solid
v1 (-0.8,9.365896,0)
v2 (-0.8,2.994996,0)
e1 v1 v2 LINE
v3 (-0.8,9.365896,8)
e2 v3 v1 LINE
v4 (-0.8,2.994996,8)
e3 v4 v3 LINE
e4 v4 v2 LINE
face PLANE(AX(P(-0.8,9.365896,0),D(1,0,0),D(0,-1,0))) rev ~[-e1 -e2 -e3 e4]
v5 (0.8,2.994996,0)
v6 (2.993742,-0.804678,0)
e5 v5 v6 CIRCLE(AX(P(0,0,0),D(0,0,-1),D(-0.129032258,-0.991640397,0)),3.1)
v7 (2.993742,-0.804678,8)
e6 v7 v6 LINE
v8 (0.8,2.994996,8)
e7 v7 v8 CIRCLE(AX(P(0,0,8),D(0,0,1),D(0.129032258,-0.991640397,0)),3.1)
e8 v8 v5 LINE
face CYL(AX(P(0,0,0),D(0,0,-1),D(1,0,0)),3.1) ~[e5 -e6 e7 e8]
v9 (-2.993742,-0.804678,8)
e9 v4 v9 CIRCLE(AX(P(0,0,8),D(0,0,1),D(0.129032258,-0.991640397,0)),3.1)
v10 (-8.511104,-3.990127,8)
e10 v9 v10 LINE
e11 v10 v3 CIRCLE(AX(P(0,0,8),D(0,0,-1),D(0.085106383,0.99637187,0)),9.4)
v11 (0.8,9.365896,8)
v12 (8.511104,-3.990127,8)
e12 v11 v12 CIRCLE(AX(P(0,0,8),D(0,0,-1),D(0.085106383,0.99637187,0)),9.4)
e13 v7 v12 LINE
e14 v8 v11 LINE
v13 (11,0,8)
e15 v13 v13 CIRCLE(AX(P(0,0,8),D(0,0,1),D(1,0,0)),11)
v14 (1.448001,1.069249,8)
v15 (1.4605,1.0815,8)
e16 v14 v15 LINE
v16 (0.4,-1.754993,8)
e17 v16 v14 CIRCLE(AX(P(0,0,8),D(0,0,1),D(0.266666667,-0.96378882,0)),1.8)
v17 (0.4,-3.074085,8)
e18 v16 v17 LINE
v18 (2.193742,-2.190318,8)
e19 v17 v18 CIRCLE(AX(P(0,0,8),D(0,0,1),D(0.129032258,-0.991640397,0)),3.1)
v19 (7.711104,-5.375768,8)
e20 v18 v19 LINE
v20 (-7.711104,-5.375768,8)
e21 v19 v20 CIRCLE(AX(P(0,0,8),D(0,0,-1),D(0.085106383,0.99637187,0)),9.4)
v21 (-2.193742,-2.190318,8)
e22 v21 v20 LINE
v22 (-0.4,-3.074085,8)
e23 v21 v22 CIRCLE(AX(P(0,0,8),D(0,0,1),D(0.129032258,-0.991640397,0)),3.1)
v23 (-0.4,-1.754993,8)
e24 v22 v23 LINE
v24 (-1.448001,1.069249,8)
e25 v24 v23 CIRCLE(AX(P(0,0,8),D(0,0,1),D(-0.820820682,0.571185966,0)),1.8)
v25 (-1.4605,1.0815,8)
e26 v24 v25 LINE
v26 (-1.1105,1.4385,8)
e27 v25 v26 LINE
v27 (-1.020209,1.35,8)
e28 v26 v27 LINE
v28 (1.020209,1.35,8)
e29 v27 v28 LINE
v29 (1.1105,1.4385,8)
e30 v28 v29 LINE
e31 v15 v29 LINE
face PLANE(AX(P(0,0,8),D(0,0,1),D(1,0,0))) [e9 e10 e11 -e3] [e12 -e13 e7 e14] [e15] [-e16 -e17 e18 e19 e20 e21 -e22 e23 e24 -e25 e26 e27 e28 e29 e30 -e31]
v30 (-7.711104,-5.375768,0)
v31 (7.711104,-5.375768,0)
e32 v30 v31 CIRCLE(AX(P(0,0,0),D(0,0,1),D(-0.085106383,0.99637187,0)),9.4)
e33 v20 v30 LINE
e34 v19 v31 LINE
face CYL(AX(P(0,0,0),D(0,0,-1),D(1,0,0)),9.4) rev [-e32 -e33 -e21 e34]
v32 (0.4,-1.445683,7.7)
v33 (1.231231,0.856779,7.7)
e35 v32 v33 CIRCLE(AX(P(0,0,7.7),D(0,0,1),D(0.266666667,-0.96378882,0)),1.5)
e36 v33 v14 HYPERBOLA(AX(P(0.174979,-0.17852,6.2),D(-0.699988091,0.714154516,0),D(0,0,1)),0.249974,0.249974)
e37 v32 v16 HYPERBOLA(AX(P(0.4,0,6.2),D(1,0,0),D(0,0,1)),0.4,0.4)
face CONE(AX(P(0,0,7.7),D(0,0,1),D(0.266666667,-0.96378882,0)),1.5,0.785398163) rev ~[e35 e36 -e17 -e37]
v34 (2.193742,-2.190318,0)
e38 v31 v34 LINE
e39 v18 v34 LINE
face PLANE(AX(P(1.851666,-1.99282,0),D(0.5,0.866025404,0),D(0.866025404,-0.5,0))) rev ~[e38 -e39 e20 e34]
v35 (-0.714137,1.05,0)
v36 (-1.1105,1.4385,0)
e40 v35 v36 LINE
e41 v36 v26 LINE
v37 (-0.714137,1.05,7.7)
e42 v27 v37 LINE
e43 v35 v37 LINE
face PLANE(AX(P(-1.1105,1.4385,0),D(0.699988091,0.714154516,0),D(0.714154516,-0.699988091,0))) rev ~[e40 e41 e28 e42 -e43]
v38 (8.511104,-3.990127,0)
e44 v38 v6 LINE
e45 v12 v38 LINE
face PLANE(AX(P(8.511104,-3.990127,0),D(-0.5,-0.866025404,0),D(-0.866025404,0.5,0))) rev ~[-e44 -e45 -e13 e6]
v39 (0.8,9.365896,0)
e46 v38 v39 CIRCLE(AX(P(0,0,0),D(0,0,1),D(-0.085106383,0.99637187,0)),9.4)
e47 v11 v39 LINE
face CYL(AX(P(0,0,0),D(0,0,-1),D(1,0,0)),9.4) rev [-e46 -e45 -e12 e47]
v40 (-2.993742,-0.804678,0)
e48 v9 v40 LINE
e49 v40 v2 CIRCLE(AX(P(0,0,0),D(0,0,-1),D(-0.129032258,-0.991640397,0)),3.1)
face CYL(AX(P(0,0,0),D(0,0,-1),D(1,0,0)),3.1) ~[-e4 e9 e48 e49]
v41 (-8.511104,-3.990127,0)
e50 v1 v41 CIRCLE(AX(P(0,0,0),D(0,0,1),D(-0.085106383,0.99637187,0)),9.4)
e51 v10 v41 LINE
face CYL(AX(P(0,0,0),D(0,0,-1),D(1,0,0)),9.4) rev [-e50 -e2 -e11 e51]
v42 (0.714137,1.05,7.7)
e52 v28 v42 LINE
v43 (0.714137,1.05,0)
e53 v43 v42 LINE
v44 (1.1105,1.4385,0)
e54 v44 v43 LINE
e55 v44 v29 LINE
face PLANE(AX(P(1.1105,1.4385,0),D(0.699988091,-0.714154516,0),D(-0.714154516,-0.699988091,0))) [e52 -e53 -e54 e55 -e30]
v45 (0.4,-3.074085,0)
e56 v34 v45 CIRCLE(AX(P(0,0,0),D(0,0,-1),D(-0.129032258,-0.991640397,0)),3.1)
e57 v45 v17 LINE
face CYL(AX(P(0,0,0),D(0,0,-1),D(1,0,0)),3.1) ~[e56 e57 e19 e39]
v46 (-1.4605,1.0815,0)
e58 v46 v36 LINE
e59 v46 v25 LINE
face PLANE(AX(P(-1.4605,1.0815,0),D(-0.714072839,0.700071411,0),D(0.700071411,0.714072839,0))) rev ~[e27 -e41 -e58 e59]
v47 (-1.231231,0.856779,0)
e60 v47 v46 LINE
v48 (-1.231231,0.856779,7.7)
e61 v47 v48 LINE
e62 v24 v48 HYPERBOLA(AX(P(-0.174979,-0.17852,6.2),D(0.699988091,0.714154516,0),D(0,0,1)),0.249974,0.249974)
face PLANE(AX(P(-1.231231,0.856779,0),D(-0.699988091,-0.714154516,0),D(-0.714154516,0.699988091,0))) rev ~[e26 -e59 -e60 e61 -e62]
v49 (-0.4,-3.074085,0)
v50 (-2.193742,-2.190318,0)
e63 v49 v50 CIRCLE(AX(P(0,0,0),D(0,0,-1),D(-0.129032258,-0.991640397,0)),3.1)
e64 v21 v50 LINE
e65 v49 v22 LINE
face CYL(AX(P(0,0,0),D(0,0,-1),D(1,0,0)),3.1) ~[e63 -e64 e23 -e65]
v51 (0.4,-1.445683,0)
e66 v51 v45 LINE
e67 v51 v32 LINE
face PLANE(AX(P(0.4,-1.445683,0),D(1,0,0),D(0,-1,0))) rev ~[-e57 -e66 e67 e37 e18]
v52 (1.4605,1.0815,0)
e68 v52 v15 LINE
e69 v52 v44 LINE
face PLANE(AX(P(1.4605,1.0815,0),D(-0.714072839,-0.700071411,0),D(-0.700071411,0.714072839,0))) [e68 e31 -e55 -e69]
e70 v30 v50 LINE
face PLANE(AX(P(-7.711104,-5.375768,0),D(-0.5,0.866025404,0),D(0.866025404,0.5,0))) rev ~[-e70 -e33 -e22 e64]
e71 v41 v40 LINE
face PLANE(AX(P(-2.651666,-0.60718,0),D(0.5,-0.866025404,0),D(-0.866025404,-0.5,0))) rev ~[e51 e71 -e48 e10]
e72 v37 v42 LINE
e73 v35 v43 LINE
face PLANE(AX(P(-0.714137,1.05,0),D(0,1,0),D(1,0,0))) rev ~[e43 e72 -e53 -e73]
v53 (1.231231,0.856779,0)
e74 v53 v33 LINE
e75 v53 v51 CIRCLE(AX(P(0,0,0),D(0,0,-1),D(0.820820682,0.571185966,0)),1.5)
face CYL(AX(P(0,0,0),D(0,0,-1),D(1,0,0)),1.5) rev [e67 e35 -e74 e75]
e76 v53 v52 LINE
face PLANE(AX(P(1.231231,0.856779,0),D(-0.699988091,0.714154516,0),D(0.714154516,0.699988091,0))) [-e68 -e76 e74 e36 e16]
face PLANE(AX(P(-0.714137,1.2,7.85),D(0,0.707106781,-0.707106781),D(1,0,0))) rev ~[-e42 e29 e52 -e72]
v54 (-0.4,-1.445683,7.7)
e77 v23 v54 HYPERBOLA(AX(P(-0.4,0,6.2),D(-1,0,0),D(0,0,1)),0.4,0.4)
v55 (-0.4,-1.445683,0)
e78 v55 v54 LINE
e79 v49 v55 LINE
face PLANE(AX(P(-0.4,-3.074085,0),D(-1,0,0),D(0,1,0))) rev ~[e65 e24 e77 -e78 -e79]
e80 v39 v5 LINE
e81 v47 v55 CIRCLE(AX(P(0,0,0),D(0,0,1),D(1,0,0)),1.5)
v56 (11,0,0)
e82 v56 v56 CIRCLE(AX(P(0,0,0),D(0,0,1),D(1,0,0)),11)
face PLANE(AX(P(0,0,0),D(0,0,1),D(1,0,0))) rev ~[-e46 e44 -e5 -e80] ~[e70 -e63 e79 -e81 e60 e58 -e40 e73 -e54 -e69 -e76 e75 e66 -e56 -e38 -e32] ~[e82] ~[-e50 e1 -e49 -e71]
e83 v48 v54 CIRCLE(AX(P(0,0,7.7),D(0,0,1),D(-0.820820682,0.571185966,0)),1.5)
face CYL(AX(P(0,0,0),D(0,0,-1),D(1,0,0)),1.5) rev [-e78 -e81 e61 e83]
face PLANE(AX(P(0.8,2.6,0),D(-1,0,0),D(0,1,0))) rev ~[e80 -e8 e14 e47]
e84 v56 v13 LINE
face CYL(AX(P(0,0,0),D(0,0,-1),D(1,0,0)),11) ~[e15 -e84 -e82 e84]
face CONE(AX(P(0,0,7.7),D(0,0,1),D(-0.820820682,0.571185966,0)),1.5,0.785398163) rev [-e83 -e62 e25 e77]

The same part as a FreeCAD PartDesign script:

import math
import FreeCAD as App
import Part
import Sketcher

V = App.Vector
Q = App.Units.Quantity


def edges_at(feature, points):
    """Names of the edges that pass closest to the given points."""
    edges = feature.Shape.Edges
    near = lambda p: min(range(len(edges)), key=lambda i: edges[i].distToShape(Part.Vertex(*p))[0])
    return sorted({f"Edge{near(p) + 1}" for p in points})

doc = App.newDocument("Part")
body = doc.addObject("PartDesign::Body", "Body")
body.AllowCompound = True

sketch1 = body.newObject("Sketcher::SketchObject", "Sketch")
sketch1.AttachmentSupport = (doc.getObject("XY_Plane"), [""])
sketch1.MapMode = "FlatFace"
sketch1.addGeometry([
    Part.ArcOfCircle(Part.Circle(V(0, 0, 0), V(0, 0, 1), 1.5), math.radians(-75), math.radians(35)),
    Part.LineSegment(V(0.4, -1.45, 0), V(0.4, -3.07, 0)),
    Part.ArcOfCircle(Part.Circle(V(0, 0, 0), V(0, 0, 1), 3.1), math.radians(-83), math.radians(263)),
    Part.LineSegment(V(-0.4, -3.07, 0), V(-0.4, -1.45, 0)),
    Part.ArcOfCircle(Part.Circle(V(0, 0, 0), V(0, 0, 1), 1.5), math.radians(145), math.radians(255)),
    Part.LineSegment(V(-1.23, 0.86, 0), V(-1.46, 1.08, 0)),
    Part.LineSegment(V(-1.46, 1.08, 0), V(-1.11, 1.44, 0)),
    Part.LineSegment(V(-1.11, 1.44, 0), V(-0.71, 1.05, 0)),
    Part.LineSegment(V(-0.71, 1.05, 0), V(0.71, 1.05, 0)),
    Part.LineSegment(V(0.71, 1.05, 0), V(1.11, 1.44, 0)),
    Part.LineSegment(V(1.11, 1.44, 0), V(1.46, 1.08, 0)),
    Part.LineSegment(V(1.46, 1.08, 0), V(1.23, 0.86, 0)),
    Part.Circle(V(0, 0, 0), V(0, 0, 1), 11),
    Part.Circle(V(0, 0, 0), V(0, 0, 1), 9.4),
], False)
sketch1.addConstraint([
    Sketcher.Constraint("Coincident", 0, 1, 1, 1),
    Sketcher.Constraint("Coincident", 1, 2, 2, 1),
    Sketcher.Constraint("Coincident", 2, 2, 3, 1),
    Sketcher.Constraint("Coincident", 3, 2, 4, 2),
    Sketcher.Constraint("Coincident", 4, 1, 5, 1),
    Sketcher.Constraint("Coincident", 5, 2, 6, 1),
    Sketcher.Constraint("Coincident", 6, 2, 7, 1),
    Sketcher.Constraint("Coincident", 7, 2, 8, 1),
    Sketcher.Constraint("Coincident", 8, 2, 9, 1),
    Sketcher.Constraint("Coincident", 9, 2, 10, 1),
    Sketcher.Constraint("Coincident", 10, 2, 11, 1),
    Sketcher.Constraint("Coincident", 11, 2, 0, 2),
    Sketcher.Constraint("Vertical", 1),
    Sketcher.Constraint("Vertical", 3),
    Sketcher.Constraint("Horizontal", 8),
    Sketcher.Constraint("Coincident", 0, 3, -1, 1),
    Sketcher.Constraint("Coincident", 2, 3, -1, 1),
    Sketcher.Constraint("Coincident", 4, 3, -1, 1),
    Sketcher.Constraint("Coincident", 12, 3, -1, 1),
    Sketcher.Constraint("Coincident", 13, 3, -1, 1),
    Sketcher.Constraint("Equal", 0, 4),
    Sketcher.Constraint("Symmetric", 6, 2, 9, 2, -2),
    Sketcher.Constraint("Symmetric", 5, 2, 10, 2, -2),
    Sketcher.Constraint("Perpendicular", 5, 6),
    Sketcher.Constraint("Perpendicular", 6, 7),
    Sketcher.Constraint("Perpendicular", 9, 10),
    Sketcher.Constraint("Perpendicular", 10, 11),
    Sketcher.Constraint("Horizontal", 1, 2, 2, 2),
    Sketcher.Constraint("Diameter", 12, Q("22 mm")),
    Sketcher.Constraint("Radius", 0, Q("1.5 mm")),
    Sketcher.Constraint("Distance", 6, Q("0.5 mm")),
    Sketcher.Constraint("Diameter", 13, Q("18.8 mm")),
    Sketcher.Constraint("Radius", 2, Q("3.1 mm")),
    Sketcher.Constraint("DistanceX", 2, 2, 1, 2, Q("0.8 mm")),
    Sketcher.Constraint("DistanceY", -1, 1, 7, 2, Q("1.05 mm")),
    Sketcher.Constraint("DistanceX", 5, 2, 6, 2, Q("0.35 mm")),
    Sketcher.Constraint("Distance", 5, Q("0.321 mm")),
    Sketcher.Constraint("Distance", 7, Q("0.555 mm")),
])
pad1 = body.newObject("PartDesign::Pad", "Pad")
pad1.Profile = sketch1
pad1.Length = 8

sketch2 = body.newObject("Sketcher::SketchObject", "Sketch001")
sketch2.AttachmentSupport = (doc.getObject("XY_Plane"), [""])
sketch2.MapMode = "FlatFace"
sketch2.addGeometry([
    Part.LineSegment(V(-0.8, 2.6, 0), V(0.8, 2.6, 0)),
    Part.LineSegment(V(0.8, 2.6, 0), V(0.8, 9.4, 0)),
    Part.LineSegment(V(0.8, 9.4, 0), V(-0.8, 9.4, 0)),
    Part.LineSegment(V(-0.8, 9.4, 0), V(-0.8, 2.6, 0)),
], False)
sketch2.addConstraint([
    Sketcher.Constraint("Coincident", 0, 2, 1, 1),
    Sketcher.Constraint("Coincident", 1, 2, 2, 1),
    Sketcher.Constraint("Coincident", 2, 2, 3, 1),
    Sketcher.Constraint("Coincident", 3, 2, 0, 1),
    Sketcher.Constraint("Horizontal", 0),
    Sketcher.Constraint("Vertical", 1),
    Sketcher.Constraint("Horizontal", 2),
    Sketcher.Constraint("Vertical", 3),
    Sketcher.Constraint("DistanceX", 0, 1, 0, 2, Q("1.6 mm")),
    Sketcher.Constraint("DistanceY", -1, 1, 0, 2, Q("2.6 mm")),
    Sketcher.Constraint("DistanceY", 1, 1, 1, 2, Q("6.8 mm")),
    Sketcher.Constraint("DistanceX", -1, 1, 0, 2, Q("0.8 mm")),
])
pad2 = body.newObject("PartDesign::Pad", "Pad001")
pad2.Profile = sketch2
pad2.Length = 8
doc.recompute()

polarpattern = body.newObject("PartDesign::PolarPattern", "PolarPattern")
polarpattern.Originals = [pad2]
polarpattern.Axis = (doc.getObject("Z_Axis"), [""])
polarpattern.Angle = 360
polarpattern.Occurrences = 3
body.Tip = polarpattern
doc.recompute()

chamfer = body.newObject("PartDesign::Chamfer", "Chamfer")
chamfer.Base = (polarpattern, edges_at(polarpattern, [(-1.411, -0.509, 8), (0, 1.05, 8), (1.411, -0.509, 8)]))
chamfer.Size = 0.3

doc.recompute()
